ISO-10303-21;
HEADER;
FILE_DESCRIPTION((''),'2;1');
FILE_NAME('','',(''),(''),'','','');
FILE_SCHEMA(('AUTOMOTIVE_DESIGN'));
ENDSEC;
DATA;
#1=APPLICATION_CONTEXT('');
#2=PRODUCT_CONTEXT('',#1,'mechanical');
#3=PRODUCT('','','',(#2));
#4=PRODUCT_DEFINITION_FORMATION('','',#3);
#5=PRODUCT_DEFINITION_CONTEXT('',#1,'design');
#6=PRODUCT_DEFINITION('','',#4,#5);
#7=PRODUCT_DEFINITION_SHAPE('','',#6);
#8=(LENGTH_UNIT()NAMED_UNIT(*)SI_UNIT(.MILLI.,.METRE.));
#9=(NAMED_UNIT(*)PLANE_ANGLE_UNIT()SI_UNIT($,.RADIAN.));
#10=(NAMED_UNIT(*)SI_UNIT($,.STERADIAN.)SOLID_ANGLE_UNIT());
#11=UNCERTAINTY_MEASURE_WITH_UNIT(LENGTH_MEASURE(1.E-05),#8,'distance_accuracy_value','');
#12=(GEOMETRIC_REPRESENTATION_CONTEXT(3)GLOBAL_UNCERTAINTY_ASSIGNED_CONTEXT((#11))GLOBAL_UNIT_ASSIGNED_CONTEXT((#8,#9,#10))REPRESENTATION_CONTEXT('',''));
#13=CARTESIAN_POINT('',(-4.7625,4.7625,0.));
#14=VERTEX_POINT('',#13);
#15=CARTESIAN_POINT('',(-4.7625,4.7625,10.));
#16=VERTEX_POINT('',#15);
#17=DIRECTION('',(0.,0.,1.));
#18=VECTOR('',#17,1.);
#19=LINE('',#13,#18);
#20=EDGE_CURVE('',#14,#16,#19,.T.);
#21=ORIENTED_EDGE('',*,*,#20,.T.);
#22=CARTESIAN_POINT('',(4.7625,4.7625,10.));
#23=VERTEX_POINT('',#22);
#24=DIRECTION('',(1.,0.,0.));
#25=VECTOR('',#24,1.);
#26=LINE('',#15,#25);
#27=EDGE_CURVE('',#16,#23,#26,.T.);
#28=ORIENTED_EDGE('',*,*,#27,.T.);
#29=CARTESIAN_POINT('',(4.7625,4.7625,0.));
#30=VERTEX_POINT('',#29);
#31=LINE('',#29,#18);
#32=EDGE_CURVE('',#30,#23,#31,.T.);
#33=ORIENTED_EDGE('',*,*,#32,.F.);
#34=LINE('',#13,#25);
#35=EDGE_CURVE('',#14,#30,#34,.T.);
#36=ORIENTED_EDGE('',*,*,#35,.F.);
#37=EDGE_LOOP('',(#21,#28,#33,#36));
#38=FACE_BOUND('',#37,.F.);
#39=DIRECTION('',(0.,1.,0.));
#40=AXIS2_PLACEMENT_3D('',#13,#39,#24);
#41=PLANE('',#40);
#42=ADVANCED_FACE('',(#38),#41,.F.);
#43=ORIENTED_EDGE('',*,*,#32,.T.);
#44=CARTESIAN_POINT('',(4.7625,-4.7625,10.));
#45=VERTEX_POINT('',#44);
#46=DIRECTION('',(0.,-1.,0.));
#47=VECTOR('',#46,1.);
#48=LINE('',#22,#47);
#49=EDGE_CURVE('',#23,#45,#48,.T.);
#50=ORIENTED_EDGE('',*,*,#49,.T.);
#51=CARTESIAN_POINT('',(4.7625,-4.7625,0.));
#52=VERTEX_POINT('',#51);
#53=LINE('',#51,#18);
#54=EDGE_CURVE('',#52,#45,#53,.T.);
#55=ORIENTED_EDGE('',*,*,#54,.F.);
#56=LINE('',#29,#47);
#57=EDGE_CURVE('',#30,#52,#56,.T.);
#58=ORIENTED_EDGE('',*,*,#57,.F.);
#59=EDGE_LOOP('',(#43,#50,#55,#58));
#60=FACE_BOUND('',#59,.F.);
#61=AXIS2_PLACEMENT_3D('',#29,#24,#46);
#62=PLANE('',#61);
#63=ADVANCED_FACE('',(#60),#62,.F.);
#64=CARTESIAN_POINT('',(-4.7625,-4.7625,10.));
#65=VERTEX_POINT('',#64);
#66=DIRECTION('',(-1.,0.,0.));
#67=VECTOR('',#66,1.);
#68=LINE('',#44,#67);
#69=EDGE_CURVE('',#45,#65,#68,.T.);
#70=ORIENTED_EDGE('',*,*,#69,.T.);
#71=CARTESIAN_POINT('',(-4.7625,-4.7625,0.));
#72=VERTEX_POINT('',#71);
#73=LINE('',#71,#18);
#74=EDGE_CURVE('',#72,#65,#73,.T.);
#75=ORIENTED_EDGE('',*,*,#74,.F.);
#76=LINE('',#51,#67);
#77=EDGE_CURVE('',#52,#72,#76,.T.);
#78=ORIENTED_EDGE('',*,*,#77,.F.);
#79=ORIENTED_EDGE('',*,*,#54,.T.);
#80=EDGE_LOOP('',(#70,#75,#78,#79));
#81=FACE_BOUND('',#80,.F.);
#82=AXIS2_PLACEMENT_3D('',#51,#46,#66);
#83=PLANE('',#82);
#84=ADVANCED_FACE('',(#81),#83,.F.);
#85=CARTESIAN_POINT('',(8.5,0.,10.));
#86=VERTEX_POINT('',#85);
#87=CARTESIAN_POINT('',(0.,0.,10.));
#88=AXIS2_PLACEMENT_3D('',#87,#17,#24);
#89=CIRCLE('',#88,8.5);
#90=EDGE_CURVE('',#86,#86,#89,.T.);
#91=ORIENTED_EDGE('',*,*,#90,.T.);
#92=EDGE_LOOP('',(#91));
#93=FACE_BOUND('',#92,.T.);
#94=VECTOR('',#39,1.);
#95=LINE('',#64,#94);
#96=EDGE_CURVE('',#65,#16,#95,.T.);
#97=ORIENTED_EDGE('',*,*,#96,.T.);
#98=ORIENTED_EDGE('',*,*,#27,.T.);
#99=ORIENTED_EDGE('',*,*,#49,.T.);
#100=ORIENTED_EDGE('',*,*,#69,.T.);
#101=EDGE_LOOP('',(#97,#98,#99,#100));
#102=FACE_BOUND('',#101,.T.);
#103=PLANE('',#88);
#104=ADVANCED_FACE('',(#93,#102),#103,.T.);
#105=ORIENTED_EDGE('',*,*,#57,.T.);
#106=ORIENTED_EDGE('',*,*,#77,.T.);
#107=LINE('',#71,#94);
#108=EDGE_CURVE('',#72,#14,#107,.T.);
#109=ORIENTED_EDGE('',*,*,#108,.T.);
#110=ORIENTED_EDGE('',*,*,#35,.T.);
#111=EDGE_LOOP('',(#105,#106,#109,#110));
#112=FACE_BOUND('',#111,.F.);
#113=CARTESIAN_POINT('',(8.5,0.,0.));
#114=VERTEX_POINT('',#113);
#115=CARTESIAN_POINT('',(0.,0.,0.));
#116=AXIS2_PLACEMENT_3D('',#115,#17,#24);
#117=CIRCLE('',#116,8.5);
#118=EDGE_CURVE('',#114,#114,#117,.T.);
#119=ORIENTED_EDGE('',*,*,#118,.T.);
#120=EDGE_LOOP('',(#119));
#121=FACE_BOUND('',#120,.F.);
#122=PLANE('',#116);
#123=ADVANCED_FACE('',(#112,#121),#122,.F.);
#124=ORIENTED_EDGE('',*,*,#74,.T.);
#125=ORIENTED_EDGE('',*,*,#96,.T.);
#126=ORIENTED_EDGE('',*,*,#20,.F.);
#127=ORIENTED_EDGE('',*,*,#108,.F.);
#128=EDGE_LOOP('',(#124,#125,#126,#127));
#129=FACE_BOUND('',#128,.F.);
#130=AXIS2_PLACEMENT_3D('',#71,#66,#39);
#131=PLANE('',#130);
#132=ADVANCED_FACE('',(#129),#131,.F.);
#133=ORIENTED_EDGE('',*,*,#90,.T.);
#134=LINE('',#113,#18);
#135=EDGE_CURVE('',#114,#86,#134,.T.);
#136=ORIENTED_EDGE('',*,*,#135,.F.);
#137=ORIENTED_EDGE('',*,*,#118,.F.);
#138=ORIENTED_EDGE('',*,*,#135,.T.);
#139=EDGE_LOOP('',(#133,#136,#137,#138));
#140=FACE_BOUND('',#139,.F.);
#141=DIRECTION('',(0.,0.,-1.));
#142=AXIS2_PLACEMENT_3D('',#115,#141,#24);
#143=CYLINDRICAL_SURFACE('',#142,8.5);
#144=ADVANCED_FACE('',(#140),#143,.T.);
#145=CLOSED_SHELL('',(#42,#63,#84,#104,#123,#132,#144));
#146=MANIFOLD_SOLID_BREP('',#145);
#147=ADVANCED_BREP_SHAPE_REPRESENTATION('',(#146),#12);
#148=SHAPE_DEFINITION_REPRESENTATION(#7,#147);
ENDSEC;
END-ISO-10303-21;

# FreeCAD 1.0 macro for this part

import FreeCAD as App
import Part
import Sketcher
from FreeCAD import Vector
Q = App.Units.Quantity


def add_polygon(sketch, points):
    """Adds a closed chain of lines whose ends are joined by coincident constraints."""
    first, n = sketch.GeometryCount, len(points)
    for a, b in zip(points, points[1:] + points[:1]):
        sketch.addGeometry(Part.LineSegment(App.Vector(*a, 0), App.Vector(*b, 0)), False)
    for i in range(n):
        sketch.addConstraint(Sketcher.Constraint("Coincident", first + i, 2, first + (i + 1) % n, 1))

doc = App.newDocument("Part")
params = doc.addObject("Spreadsheet::Sheet", "Params")
for row, (alias, value) in enumerate([
    ("sketch1_width", "0.375 in"),
    ("pad1_length", "0.3937008 in"),
], start=1):
    params.set(f"A{row}", alias)
    params.set(f"B{row}", "=" + value)
    params.setAlias(f"B{row}", alias)

body = doc.addObject("PartDesign::Body", "Body")

# Sketch on XY plane
sketch1 = body.newObject("Sketcher::SketchObject", "Sketch")
sketch1.AttachmentSupport = (doc.getObject("XY_Plane"), [""])
sketch1.MapMode = "FlatFace"
sketch1.addGeometry(Part.Circle(Vector(0, 0, 0), Vector(0, 0, 1), 8), False)  # 0
add_polygon(sketch1, [(5, 5), (5, -5), (-5, -5), (-5, 5)])  # lines 1-4
sketch1.addConstraint(Sketcher.Constraint("Vertical", 1))
sketch1.addConstraint(Sketcher.Constraint("Horizontal", 2))
sketch1.addConstraint(Sketcher.Constraint("Vertical", 3))
sketch1.addConstraint(Sketcher.Constraint("Horizontal", 4))
sketch1.addConstraint(Sketcher.Constraint("Coincident", 0, 3, -1, 1))
sketch1.addConstraint(Sketcher.Constraint("Symmetric", 1, 2, 3, 2, -1, 1))
sketch1.addConstraint(Sketcher.Constraint("Equal", 4, 1))
sketch1.addConstraint(Sketcher.Constraint("Diameter", 0, Q("0.6693 in")))
sketch1.addConstraint(Sketcher.Constraint("DistanceX", 2, 2, 2, 1, Q("0.375 in")))
sketch1.setExpression("Constraints[12]", "Params.sketch1_width")
pad1 = body.newObject("PartDesign::Pad", "Pad")
pad1.Profile = sketch1
pad1.setExpression("Length", "Params.pad1_length")

doc.recompute()
